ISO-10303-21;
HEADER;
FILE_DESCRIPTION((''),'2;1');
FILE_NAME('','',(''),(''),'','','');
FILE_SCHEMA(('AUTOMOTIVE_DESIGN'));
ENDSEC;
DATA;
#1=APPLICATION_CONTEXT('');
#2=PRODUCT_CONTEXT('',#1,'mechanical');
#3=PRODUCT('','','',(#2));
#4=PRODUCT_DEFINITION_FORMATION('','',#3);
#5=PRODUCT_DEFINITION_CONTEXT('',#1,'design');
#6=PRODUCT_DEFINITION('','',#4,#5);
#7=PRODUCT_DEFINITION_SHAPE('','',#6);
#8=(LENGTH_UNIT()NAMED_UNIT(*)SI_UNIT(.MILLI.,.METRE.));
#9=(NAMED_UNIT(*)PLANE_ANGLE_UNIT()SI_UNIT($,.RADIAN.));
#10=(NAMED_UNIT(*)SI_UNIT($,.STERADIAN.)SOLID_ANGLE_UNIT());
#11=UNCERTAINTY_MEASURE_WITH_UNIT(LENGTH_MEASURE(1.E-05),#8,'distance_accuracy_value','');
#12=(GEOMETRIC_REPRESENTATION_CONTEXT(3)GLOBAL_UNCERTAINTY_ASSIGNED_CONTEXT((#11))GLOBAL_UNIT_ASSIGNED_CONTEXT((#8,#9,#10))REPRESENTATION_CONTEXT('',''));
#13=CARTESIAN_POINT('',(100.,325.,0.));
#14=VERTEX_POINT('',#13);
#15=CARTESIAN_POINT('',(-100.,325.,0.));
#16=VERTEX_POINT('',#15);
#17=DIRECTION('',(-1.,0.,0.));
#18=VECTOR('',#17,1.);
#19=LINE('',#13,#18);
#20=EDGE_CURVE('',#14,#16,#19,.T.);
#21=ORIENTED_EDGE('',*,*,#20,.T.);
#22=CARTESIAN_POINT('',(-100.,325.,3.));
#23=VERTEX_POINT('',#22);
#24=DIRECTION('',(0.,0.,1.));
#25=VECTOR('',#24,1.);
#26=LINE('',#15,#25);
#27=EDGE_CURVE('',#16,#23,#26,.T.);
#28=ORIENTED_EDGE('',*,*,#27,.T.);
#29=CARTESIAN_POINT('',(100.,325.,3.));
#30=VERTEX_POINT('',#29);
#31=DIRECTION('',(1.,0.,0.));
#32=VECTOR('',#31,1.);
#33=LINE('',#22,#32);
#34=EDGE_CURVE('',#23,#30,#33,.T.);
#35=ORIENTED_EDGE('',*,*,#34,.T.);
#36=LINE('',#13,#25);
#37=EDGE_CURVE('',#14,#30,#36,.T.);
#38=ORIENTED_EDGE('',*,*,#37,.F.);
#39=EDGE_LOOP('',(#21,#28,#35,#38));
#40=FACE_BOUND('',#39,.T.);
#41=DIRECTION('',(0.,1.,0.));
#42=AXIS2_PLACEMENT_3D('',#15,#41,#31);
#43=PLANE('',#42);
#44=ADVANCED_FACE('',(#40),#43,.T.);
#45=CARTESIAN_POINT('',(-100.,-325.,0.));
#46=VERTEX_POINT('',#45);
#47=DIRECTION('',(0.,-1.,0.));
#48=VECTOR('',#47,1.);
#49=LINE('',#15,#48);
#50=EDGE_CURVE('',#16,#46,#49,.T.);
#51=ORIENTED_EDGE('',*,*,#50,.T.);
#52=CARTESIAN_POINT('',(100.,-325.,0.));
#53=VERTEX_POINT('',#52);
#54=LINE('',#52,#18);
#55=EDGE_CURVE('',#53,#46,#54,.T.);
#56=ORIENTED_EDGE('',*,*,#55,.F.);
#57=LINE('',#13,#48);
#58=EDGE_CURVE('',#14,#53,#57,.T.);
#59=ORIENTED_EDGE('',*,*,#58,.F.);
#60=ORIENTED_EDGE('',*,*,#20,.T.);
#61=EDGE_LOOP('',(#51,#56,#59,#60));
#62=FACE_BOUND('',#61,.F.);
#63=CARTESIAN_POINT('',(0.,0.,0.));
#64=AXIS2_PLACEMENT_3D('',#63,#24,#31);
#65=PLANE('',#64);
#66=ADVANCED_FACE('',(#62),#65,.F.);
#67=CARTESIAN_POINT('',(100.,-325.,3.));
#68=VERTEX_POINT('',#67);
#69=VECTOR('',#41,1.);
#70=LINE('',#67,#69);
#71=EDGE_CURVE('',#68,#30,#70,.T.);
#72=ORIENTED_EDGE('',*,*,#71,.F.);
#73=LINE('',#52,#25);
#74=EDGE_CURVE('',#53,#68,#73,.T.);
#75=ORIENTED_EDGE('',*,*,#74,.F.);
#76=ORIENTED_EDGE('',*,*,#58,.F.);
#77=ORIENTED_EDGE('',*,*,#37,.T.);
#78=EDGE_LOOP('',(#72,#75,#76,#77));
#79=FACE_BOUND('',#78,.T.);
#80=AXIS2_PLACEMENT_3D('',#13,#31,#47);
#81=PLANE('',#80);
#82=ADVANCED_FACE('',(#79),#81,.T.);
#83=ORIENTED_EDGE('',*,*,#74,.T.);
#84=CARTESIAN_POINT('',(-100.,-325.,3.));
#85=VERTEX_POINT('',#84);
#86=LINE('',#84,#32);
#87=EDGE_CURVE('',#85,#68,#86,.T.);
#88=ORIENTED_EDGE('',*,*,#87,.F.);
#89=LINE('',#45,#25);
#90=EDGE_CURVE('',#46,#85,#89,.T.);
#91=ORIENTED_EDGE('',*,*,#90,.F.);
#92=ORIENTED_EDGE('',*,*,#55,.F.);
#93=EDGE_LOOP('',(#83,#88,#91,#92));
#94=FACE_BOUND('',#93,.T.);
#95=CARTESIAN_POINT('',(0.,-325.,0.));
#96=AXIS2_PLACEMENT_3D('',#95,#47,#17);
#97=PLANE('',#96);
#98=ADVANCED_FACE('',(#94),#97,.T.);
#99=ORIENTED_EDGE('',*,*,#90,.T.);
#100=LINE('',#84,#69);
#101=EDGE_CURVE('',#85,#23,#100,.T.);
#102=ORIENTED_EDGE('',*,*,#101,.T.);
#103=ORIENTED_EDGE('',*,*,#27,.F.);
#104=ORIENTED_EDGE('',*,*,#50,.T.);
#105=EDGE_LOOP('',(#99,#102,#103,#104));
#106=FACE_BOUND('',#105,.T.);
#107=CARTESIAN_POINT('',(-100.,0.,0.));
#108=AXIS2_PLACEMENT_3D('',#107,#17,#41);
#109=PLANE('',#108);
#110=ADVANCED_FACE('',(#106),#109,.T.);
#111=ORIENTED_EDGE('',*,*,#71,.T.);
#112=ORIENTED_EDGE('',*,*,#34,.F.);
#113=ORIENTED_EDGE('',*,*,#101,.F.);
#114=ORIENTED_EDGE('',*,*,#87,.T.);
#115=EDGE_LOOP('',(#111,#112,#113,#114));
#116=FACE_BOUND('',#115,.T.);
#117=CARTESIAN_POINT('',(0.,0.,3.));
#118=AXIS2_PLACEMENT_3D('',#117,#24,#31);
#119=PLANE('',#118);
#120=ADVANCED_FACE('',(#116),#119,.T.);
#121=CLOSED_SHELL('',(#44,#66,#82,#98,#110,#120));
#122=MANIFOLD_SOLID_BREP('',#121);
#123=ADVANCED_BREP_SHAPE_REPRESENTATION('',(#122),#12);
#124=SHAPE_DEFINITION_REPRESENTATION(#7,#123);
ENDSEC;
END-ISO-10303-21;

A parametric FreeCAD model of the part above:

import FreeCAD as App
import Part
import Sketcher
from FreeCAD import Vector
Q = App.Units.Quantity


def add_polygon(sketch, points):
    """Adds a closed chain of lines whose ends are joined by coincident constraints."""
    first, n = sketch.GeometryCount, len(points)
    for a, b in zip(points, points[1:] + points[:1]):
        sketch.addGeometry(Part.LineSegment(App.Vector(*a, 0), App.Vector(*b, 0)), False)
    for i in range(n):
        sketch.addConstraint(Sketcher.Constraint("Coincident", first + i, 2, first + (i + 1) % n, 1))

doc = App.newDocument("Part")
params = doc.addObject("Spreadsheet::Sheet", "Params")
for row, (alias, value) in enumerate([
    ("sketch1_width", "200 mm"),
    ("sketch1_height", "650 mm"),
    ("pad1_length", "3 mm"),
], start=1):
    params.set(f"A{row}", alias)
    params.set(f"B{row}", "=" + value)
    params.setAlias(f"B{row}", alias)

body = doc.addObject("PartDesign::Body", "Body")

sketch1 = doc.addObject("Sketcher::SketchObject", "Sketch")
body.addObject(sketch1)
sketch1.AttachmentSupport = (doc.XY_Plane, [""])
sketch1.MapMode = "FlatFace"
add_polygon(sketch1, [(-100, 325), (-100, -325), (100, -325), (100, 325)])
sketch1.addConstraint([
    Sketcher.Constraint("Vertical", 0),
    Sketcher.Constraint("Horizontal", 1),
    Sketcher.Constraint("Vertical", 2),
    Sketcher.Constraint("Horizontal", 3),
    Sketcher.Constraint("Symmetric", 0, 2, 2, 2, -1, 1),
    Sketcher.Constraint("DistanceX", 1, 1, 1, 2, Q("200 mm")),
    Sketcher.Constraint("DistanceY", 0, 2, 0, 1, Q("650 mm")),
])
sketch1.setExpression("Constraints[9]", "Params.sketch1_width")
sketch1.setExpression("Constraints[10]", "Params.sketch1_height")
pad1 = doc.addObject("PartDesign::Pad", "Pad")
body.addObject(pad1)
pad1.Profile = sketch1
pad1.setExpression("Length", "Params.pad1_length")

doc.recompute()
